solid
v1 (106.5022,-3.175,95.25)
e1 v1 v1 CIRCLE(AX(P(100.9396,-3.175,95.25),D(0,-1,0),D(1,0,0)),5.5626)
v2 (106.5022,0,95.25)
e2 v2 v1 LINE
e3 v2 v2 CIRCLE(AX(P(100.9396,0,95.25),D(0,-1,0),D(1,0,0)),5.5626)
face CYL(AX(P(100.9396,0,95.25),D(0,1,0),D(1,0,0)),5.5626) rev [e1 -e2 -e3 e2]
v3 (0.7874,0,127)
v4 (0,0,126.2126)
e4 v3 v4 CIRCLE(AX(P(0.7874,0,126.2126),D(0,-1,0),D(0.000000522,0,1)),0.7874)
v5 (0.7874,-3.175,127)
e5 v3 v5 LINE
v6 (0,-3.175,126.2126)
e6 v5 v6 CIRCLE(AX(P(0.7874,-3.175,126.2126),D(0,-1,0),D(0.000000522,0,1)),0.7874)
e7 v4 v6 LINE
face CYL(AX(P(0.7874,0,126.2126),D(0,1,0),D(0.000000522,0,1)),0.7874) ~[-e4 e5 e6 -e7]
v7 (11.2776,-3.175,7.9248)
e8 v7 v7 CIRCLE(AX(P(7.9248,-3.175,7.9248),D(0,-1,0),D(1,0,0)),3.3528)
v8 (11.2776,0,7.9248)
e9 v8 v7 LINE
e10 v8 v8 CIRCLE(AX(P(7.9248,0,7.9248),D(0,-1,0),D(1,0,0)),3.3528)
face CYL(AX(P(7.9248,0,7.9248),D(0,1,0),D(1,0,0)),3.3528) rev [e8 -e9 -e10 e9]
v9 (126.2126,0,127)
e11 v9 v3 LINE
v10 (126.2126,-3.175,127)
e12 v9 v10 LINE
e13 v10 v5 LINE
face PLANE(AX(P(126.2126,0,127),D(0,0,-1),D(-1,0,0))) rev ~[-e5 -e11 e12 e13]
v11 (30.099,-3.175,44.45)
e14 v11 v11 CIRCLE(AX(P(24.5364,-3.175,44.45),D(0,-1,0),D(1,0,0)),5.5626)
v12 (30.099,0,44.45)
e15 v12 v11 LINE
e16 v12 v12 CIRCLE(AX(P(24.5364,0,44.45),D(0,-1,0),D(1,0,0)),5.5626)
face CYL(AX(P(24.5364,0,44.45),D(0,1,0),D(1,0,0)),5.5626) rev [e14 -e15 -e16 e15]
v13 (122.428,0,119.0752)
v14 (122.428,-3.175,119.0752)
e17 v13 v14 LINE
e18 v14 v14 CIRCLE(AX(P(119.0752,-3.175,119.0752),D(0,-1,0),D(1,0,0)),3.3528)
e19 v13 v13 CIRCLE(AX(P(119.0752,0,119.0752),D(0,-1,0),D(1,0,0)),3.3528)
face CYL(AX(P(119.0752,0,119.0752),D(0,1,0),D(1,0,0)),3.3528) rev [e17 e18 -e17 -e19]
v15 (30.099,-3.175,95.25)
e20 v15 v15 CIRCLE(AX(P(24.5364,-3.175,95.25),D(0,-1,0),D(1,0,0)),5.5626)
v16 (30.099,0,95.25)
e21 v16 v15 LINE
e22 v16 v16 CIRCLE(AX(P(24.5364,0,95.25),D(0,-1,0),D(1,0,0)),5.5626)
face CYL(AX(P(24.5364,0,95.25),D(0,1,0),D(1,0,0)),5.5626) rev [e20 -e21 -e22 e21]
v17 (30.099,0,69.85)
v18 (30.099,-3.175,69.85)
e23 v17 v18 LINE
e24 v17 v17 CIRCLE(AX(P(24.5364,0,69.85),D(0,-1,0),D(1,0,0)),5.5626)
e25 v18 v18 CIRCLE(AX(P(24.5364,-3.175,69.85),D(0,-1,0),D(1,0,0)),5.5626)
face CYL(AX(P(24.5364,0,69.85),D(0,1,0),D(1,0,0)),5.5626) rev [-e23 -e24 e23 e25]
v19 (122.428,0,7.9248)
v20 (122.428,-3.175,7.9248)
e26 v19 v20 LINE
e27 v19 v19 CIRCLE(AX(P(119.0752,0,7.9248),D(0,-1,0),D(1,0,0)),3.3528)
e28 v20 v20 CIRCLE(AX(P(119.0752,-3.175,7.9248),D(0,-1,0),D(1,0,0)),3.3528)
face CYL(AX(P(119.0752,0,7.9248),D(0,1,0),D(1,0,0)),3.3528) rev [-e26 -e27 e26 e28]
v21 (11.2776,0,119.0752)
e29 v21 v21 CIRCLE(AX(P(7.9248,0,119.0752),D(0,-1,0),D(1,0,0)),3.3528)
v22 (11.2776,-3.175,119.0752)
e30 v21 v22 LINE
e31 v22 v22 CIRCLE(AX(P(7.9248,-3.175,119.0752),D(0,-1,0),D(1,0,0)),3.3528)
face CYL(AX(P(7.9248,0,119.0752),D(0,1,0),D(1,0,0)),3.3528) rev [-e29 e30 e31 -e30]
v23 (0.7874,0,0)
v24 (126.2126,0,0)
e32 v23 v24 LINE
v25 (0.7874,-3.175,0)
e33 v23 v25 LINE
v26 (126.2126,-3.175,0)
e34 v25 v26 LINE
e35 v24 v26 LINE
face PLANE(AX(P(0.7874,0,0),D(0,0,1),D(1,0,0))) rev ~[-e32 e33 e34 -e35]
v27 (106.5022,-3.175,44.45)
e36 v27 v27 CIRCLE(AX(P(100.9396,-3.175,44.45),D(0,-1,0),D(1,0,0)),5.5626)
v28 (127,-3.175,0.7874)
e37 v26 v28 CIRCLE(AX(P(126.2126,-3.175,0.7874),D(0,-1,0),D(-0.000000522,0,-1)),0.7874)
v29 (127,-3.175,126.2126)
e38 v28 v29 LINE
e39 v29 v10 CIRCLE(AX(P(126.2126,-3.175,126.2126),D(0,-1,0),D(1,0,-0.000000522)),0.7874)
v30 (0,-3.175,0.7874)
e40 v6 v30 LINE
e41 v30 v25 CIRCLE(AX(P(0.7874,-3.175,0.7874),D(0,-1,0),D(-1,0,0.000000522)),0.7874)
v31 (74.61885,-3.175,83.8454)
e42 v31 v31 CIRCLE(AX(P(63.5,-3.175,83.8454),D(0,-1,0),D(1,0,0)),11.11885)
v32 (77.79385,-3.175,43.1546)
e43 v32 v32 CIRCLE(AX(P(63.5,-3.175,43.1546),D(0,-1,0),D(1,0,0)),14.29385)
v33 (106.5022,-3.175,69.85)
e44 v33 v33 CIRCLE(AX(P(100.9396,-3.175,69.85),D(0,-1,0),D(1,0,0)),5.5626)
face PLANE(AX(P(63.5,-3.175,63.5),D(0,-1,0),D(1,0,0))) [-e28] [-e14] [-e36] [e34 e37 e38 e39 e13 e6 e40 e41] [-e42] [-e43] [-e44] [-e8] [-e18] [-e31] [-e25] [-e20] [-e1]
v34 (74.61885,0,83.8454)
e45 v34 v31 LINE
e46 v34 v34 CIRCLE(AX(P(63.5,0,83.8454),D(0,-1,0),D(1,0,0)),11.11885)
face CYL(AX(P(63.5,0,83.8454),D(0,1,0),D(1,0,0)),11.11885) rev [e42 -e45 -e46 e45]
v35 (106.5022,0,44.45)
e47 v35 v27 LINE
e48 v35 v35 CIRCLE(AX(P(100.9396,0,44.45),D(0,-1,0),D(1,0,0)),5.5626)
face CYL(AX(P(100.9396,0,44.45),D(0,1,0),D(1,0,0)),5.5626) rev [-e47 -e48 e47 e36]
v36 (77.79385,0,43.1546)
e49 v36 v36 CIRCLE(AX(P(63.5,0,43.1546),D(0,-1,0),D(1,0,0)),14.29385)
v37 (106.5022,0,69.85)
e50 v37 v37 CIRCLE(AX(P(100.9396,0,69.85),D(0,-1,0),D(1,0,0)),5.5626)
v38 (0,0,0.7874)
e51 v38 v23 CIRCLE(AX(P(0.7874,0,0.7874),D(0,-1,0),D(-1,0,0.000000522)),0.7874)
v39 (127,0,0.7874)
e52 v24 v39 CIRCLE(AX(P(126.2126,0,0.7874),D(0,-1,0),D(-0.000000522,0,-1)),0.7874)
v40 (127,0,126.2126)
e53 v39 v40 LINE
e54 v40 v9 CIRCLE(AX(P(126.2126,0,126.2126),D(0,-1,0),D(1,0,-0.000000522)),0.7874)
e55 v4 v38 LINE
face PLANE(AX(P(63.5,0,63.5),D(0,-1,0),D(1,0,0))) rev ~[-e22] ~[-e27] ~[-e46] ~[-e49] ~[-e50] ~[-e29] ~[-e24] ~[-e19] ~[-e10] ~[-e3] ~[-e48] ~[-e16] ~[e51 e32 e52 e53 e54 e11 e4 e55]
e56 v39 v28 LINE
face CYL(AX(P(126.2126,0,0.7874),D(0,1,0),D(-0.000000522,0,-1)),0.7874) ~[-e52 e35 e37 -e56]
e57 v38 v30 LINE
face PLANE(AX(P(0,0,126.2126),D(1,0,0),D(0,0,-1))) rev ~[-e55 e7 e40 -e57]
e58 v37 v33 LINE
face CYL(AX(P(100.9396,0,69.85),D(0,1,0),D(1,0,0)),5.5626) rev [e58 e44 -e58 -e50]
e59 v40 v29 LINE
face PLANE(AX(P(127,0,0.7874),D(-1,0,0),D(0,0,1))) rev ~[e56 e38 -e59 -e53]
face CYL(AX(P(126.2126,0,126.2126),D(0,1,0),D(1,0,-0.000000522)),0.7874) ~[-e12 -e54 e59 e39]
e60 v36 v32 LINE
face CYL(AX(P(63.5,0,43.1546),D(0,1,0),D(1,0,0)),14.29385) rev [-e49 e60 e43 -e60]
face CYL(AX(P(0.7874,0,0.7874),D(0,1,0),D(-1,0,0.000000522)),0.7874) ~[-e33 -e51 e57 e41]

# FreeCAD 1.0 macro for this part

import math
import FreeCAD as App
import Part
import Sketcher

V = App.Vector
Q = App.Units.Quantity

doc = App.newDocument("Part")
body = doc.addObject("PartDesign::Body", "Body")

# Sketch on XZ plane
sketch1 = body.newObject("Sketcher::SketchObject", "Sketch")
sketch1.AttachmentSupport = (doc.getObject("XZ_Plane"), [""])
sketch1.MapMode = "FlatFace"
sketch1.addGeometry([
    Part.ArcOfCircle(Part.Circle(V(0.8, 0.8, 0), V(0, 0, 1), 0.8), math.radians(180), math.radians(270)),  # 0
    Part.LineSegment(V(0.8, 0, 0), V(126.2, 0, 0)),  # 1
    Part.ArcOfCircle(Part.Circle(V(126.2, 0.8, 0), V(0, 0, 1), 0.8), math.radians(-90), math.radians(0)),  # 2
    Part.LineSegment(V(127, 0.8, 0), V(127, 126.2, 0)),  # 3
    Part.ArcOfCircle(Part.Circle(V(126.2, 126.2, 0), V(0, 0, 1), 0.8), math.radians(0), math.radians(90)),  # 4
    Part.LineSegment(V(126.2, 127, 0), V(0.8, 127, 0)),  # 5
    Part.ArcOfCircle(Part.Circle(V(0.8, 126.2, 0), V(0, 0, 1), 0.8), math.radians(90), math.radians(180)),  # 6
    Part.LineSegment(V(0, 126.2, 0), V(0, 0.8, 0)),  # 7
    Part.Circle(V(7.9, 7.9, 0), V(0, 0, 1), 3.4),  # 8
    Part.Circle(V(24.5, 44.5, 0), V(0, 0, 1), 5.6),  # 9
    Part.Circle(V(119.1, 7.9, 0), V(0, 0, 1), 3.4),  # 10
    Part.Circle(V(63.5, 43.2, 0), V(0, 0, 1), 14.3),  # 11
    Part.Circle(V(100.9, 44.5, 0), V(0, 0, 1), 5.6),  # 12
    Part.Circle(V(24.5, 69.8, 0), V(0, 0, 1), 5.6),  # 13
    Part.Circle(V(24.5, 95.2, 0), V(0, 0, 1), 5.6),  # 14
    Part.Circle(V(7.9, 119.1, 0), V(0, 0, 1), 3.4),  # 15
    Part.Circle(V(63.5, 83.8, 0), V(0, 0, 1), 11.1),  # 16
    Part.Circle(V(100.9, 69.8, 0), V(0, 0, 1), 5.6),  # 17
    Part.Circle(V(100.9, 95.2, 0), V(0, 0, 1), 5.6),  # 18
    Part.Circle(V(119.1, 119.1, 0), V(0, 0, 1), 3.4),  # 19
], False)
sketch1.addConstraint([
    Sketcher.Constraint("Tangent", 0, 2, 1, 1),
    Sketcher.Constraint("Tangent", 1, 2, 2, 1),
    Sketcher.Constraint("Tangent", 2, 2, 3, 1),
    Sketcher.Constraint("Tangent", 3, 2, 4, 1),
    Sketcher.Constraint("Tangent", 4, 2, 5, 1),
    Sketcher.Constraint("Tangent", 5, 2, 6, 1),
    Sketcher.Constraint("Tangent", 6, 2, 7, 1),
    Sketcher.Constraint("Tangent", 7, 2, 0, 1),
    Sketcher.Constraint("Horizontal", 1),
    Sketcher.Constraint("Vertical", 3),
    Sketcher.Constraint("Horizontal", 5),
    Sketcher.Constraint("Vertical", 7),
    Sketcher.Constraint("Equal", 0, 2),
    Sketcher.Constraint("Equal", 2, 4),
    Sketcher.Constraint("Equal", 4, 6),
    Sketcher.Constraint("Equal", 8, 10),
    Sketcher.Constraint("Equal", 9, 12),
    Sketcher.Constraint("Equal", 12, 13),
    Sketcher.Constraint("Equal", 13, 14),
    Sketcher.Constraint("Equal", 10, 15),
    Sketcher.Constraint("Equal", 14, 17),
    Sketcher.Constraint("Equal", 17, 18),
    Sketcher.Constraint("Equal", 15, 19),
    Sketcher.Constraint("PointOnObject", 0, 2, -1),
    Sketcher.Constraint("PointOnObject", 6, 2, -2),
    Sketcher.Constraint("Horizontal", 8, 3, 10, 3),
    Sketcher.Constraint("Horizontal", 9, 3, 12, 3),
    Sketcher.Constraint("Horizontal", 13, 3, 17, 3),
    Sketcher.Constraint("Horizontal", 14, 3, 18, 3),
    Sketcher.Constraint("Horizontal", 15, 3, 19, 3),
    Sketcher.Constraint("Vertical", 9, 3, 13, 3),
    Sketcher.Constraint("Vertical", 13, 3, 14, 3),
    Sketcher.Constraint("Vertical", 8, 3, 15, 3),
    Sketcher.Constraint("Vertical", 11, 3, 16, 3),
    Sketcher.Constraint("Vertical", 12, 3, 17, 3),
    Sketcher.Constraint("Vertical", 17, 3, 18, 3),
    Sketcher.Constraint("Vertical", 10, 3, 19, 3),
    Sketcher.Constraint("Equal", 5, 3),
    Sketcher.Constraint("Diameter", 8, Q("0.264 in")),
    Sketcher.Constraint("Diameter", 9, Q("0.438 in")),
    Sketcher.Constraint("DistanceX", -1, 1, 2, 2, Q("5 in")),
    Sketcher.Constraint("Radius", 0, Q("0.031 in")),
    Sketcher.Constraint("DistanceY", 9, 3, 13, 3, Q("1 in")),
    Sketcher.Constraint("DistanceY", 13, 3, 14, 3, Q("1 in")),
    Sketcher.Constraint("Diameter", 11, Q("1.1255 in")),
    Sketcher.Constraint("Diameter", 16, Q("0.8755 in")),
    Sketcher.Constraint("DistanceX", -1, 1, 11, 3, Q("2.5 in")),
    Sketcher.Constraint("DistanceY", -1, 1, 9, 3, Q("1.75 in")),
    Sketcher.Constraint("DistanceX", -1, 1, 8, 3, Q("0.312 in")),
    Sketcher.Constraint("DistanceY", -1, 1, 8, 3, Q("0.312 in")),
    Sketcher.Constraint("DistanceX", -1, 1, 9, 3, Q("0.966 in")),
    Sketcher.Constraint("DistanceX", -1, 1, 10, 3, Q("4.688 in")),
    Sketcher.Constraint("DistanceY", -1, 1, 11, 3, Q("1.699 in")),
    Sketcher.Constraint("DistanceX", -1, 1, 12, 3, Q("3.974 in")),
    Sketcher.Constraint("DistanceY", -1, 1, 15, 3, Q("4.688 in")),
    Sketcher.Constraint("DistanceY", -1, 1, 16, 3, Q("3.301 in")),
])
pad1 = body.newObject("PartDesign::Pad", "Pad")
pad1.Profile = sketch1
pad1.Length = Q("0.125 in")

doc.recompute()
